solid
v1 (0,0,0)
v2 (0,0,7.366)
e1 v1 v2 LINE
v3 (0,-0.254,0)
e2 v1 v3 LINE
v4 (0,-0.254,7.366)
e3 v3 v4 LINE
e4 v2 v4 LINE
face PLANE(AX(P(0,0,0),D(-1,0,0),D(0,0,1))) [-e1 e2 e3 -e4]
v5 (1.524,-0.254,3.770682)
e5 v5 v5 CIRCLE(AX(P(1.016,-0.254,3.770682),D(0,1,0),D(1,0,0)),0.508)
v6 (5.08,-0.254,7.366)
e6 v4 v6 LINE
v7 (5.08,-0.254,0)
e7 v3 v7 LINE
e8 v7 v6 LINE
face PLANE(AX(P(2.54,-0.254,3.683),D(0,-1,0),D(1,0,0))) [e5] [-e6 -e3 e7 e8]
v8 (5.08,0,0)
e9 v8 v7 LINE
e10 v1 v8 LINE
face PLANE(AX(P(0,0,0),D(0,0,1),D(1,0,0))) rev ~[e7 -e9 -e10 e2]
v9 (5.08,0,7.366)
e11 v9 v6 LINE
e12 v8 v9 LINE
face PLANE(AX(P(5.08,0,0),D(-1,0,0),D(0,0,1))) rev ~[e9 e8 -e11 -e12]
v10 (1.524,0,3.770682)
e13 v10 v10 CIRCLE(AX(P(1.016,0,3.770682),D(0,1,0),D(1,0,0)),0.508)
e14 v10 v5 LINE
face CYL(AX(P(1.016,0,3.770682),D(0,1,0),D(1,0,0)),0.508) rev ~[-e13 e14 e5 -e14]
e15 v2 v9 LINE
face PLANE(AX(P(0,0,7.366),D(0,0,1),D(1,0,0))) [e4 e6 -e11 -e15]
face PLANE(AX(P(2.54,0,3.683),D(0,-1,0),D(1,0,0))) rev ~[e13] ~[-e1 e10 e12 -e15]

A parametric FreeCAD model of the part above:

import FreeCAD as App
import Part
import Sketcher
from FreeCAD import Vector
Q = App.Units.Quantity


def add_polygon(sketch, points):
    """Adds a closed chain of lines whose ends are joined by coincident constraints."""
    first, n = sketch.GeometryCount, len(points)
    for a, b in zip(points, points[1:] + points[:1]):
        sketch.addGeometry(Part.LineSegment(App.Vector(*a, 0), App.Vector(*b, 0)), False)
    for i in range(n):
        sketch.addConstraint(Sketcher.Constraint("Coincident", first + i, 2, first + (i + 1) % n, 1))

doc = App.newDocument("Part")
body = doc.addObject("PartDesign::Body", "Body")

sketch1 = doc.addObject("Sketcher::SketchObject", "Sketch")
body.addObject(sketch1)
sketch1.AttachmentSupport = (doc.XZ_Plane, [""])
sketch1.MapMode = "FlatFace"
add_polygon(sketch1, [(0, 7.4), (0, 0), (5.1, 0), (5.1, 7.4)])
sketch1.addGeometry(Part.Circle(Vector(1, 3.8, 0), Vector(0, 0, 1), 0.5), False)
sketch1.addConstraint([
    Sketcher.Constraint("Vertical", 0),
    Sketcher.Constraint("Horizontal", 1),
    Sketcher.Constraint("Vertical", 2),
    Sketcher.Constraint("Horizontal", 3),
    Sketcher.Constraint("Coincident", 0, 2, -1, 1),
    Sketcher.Constraint("Diameter", 4, Q("0.04 in")),
    Sketcher.Constraint("DistanceX", 1, 1, 1, 2, Q("0.2 in")),
    Sketcher.Constraint("DistanceY", 0, 2, 0, 1, Q("0.29 in")),
    Sketcher.Constraint("DistanceX", -1, 1, 4, 3, Q("0.04 in")),
    Sketcher.Constraint("DistanceY", -1, 1, 4, 3, Q("3.770682 mm")),
])
pad1 = doc.addObject("PartDesign::Pad", "Pad")
body.addObject(pad1)
pad1.Profile = sketch1
pad1.Length = Q("0.01 in")

doc.recompute()
